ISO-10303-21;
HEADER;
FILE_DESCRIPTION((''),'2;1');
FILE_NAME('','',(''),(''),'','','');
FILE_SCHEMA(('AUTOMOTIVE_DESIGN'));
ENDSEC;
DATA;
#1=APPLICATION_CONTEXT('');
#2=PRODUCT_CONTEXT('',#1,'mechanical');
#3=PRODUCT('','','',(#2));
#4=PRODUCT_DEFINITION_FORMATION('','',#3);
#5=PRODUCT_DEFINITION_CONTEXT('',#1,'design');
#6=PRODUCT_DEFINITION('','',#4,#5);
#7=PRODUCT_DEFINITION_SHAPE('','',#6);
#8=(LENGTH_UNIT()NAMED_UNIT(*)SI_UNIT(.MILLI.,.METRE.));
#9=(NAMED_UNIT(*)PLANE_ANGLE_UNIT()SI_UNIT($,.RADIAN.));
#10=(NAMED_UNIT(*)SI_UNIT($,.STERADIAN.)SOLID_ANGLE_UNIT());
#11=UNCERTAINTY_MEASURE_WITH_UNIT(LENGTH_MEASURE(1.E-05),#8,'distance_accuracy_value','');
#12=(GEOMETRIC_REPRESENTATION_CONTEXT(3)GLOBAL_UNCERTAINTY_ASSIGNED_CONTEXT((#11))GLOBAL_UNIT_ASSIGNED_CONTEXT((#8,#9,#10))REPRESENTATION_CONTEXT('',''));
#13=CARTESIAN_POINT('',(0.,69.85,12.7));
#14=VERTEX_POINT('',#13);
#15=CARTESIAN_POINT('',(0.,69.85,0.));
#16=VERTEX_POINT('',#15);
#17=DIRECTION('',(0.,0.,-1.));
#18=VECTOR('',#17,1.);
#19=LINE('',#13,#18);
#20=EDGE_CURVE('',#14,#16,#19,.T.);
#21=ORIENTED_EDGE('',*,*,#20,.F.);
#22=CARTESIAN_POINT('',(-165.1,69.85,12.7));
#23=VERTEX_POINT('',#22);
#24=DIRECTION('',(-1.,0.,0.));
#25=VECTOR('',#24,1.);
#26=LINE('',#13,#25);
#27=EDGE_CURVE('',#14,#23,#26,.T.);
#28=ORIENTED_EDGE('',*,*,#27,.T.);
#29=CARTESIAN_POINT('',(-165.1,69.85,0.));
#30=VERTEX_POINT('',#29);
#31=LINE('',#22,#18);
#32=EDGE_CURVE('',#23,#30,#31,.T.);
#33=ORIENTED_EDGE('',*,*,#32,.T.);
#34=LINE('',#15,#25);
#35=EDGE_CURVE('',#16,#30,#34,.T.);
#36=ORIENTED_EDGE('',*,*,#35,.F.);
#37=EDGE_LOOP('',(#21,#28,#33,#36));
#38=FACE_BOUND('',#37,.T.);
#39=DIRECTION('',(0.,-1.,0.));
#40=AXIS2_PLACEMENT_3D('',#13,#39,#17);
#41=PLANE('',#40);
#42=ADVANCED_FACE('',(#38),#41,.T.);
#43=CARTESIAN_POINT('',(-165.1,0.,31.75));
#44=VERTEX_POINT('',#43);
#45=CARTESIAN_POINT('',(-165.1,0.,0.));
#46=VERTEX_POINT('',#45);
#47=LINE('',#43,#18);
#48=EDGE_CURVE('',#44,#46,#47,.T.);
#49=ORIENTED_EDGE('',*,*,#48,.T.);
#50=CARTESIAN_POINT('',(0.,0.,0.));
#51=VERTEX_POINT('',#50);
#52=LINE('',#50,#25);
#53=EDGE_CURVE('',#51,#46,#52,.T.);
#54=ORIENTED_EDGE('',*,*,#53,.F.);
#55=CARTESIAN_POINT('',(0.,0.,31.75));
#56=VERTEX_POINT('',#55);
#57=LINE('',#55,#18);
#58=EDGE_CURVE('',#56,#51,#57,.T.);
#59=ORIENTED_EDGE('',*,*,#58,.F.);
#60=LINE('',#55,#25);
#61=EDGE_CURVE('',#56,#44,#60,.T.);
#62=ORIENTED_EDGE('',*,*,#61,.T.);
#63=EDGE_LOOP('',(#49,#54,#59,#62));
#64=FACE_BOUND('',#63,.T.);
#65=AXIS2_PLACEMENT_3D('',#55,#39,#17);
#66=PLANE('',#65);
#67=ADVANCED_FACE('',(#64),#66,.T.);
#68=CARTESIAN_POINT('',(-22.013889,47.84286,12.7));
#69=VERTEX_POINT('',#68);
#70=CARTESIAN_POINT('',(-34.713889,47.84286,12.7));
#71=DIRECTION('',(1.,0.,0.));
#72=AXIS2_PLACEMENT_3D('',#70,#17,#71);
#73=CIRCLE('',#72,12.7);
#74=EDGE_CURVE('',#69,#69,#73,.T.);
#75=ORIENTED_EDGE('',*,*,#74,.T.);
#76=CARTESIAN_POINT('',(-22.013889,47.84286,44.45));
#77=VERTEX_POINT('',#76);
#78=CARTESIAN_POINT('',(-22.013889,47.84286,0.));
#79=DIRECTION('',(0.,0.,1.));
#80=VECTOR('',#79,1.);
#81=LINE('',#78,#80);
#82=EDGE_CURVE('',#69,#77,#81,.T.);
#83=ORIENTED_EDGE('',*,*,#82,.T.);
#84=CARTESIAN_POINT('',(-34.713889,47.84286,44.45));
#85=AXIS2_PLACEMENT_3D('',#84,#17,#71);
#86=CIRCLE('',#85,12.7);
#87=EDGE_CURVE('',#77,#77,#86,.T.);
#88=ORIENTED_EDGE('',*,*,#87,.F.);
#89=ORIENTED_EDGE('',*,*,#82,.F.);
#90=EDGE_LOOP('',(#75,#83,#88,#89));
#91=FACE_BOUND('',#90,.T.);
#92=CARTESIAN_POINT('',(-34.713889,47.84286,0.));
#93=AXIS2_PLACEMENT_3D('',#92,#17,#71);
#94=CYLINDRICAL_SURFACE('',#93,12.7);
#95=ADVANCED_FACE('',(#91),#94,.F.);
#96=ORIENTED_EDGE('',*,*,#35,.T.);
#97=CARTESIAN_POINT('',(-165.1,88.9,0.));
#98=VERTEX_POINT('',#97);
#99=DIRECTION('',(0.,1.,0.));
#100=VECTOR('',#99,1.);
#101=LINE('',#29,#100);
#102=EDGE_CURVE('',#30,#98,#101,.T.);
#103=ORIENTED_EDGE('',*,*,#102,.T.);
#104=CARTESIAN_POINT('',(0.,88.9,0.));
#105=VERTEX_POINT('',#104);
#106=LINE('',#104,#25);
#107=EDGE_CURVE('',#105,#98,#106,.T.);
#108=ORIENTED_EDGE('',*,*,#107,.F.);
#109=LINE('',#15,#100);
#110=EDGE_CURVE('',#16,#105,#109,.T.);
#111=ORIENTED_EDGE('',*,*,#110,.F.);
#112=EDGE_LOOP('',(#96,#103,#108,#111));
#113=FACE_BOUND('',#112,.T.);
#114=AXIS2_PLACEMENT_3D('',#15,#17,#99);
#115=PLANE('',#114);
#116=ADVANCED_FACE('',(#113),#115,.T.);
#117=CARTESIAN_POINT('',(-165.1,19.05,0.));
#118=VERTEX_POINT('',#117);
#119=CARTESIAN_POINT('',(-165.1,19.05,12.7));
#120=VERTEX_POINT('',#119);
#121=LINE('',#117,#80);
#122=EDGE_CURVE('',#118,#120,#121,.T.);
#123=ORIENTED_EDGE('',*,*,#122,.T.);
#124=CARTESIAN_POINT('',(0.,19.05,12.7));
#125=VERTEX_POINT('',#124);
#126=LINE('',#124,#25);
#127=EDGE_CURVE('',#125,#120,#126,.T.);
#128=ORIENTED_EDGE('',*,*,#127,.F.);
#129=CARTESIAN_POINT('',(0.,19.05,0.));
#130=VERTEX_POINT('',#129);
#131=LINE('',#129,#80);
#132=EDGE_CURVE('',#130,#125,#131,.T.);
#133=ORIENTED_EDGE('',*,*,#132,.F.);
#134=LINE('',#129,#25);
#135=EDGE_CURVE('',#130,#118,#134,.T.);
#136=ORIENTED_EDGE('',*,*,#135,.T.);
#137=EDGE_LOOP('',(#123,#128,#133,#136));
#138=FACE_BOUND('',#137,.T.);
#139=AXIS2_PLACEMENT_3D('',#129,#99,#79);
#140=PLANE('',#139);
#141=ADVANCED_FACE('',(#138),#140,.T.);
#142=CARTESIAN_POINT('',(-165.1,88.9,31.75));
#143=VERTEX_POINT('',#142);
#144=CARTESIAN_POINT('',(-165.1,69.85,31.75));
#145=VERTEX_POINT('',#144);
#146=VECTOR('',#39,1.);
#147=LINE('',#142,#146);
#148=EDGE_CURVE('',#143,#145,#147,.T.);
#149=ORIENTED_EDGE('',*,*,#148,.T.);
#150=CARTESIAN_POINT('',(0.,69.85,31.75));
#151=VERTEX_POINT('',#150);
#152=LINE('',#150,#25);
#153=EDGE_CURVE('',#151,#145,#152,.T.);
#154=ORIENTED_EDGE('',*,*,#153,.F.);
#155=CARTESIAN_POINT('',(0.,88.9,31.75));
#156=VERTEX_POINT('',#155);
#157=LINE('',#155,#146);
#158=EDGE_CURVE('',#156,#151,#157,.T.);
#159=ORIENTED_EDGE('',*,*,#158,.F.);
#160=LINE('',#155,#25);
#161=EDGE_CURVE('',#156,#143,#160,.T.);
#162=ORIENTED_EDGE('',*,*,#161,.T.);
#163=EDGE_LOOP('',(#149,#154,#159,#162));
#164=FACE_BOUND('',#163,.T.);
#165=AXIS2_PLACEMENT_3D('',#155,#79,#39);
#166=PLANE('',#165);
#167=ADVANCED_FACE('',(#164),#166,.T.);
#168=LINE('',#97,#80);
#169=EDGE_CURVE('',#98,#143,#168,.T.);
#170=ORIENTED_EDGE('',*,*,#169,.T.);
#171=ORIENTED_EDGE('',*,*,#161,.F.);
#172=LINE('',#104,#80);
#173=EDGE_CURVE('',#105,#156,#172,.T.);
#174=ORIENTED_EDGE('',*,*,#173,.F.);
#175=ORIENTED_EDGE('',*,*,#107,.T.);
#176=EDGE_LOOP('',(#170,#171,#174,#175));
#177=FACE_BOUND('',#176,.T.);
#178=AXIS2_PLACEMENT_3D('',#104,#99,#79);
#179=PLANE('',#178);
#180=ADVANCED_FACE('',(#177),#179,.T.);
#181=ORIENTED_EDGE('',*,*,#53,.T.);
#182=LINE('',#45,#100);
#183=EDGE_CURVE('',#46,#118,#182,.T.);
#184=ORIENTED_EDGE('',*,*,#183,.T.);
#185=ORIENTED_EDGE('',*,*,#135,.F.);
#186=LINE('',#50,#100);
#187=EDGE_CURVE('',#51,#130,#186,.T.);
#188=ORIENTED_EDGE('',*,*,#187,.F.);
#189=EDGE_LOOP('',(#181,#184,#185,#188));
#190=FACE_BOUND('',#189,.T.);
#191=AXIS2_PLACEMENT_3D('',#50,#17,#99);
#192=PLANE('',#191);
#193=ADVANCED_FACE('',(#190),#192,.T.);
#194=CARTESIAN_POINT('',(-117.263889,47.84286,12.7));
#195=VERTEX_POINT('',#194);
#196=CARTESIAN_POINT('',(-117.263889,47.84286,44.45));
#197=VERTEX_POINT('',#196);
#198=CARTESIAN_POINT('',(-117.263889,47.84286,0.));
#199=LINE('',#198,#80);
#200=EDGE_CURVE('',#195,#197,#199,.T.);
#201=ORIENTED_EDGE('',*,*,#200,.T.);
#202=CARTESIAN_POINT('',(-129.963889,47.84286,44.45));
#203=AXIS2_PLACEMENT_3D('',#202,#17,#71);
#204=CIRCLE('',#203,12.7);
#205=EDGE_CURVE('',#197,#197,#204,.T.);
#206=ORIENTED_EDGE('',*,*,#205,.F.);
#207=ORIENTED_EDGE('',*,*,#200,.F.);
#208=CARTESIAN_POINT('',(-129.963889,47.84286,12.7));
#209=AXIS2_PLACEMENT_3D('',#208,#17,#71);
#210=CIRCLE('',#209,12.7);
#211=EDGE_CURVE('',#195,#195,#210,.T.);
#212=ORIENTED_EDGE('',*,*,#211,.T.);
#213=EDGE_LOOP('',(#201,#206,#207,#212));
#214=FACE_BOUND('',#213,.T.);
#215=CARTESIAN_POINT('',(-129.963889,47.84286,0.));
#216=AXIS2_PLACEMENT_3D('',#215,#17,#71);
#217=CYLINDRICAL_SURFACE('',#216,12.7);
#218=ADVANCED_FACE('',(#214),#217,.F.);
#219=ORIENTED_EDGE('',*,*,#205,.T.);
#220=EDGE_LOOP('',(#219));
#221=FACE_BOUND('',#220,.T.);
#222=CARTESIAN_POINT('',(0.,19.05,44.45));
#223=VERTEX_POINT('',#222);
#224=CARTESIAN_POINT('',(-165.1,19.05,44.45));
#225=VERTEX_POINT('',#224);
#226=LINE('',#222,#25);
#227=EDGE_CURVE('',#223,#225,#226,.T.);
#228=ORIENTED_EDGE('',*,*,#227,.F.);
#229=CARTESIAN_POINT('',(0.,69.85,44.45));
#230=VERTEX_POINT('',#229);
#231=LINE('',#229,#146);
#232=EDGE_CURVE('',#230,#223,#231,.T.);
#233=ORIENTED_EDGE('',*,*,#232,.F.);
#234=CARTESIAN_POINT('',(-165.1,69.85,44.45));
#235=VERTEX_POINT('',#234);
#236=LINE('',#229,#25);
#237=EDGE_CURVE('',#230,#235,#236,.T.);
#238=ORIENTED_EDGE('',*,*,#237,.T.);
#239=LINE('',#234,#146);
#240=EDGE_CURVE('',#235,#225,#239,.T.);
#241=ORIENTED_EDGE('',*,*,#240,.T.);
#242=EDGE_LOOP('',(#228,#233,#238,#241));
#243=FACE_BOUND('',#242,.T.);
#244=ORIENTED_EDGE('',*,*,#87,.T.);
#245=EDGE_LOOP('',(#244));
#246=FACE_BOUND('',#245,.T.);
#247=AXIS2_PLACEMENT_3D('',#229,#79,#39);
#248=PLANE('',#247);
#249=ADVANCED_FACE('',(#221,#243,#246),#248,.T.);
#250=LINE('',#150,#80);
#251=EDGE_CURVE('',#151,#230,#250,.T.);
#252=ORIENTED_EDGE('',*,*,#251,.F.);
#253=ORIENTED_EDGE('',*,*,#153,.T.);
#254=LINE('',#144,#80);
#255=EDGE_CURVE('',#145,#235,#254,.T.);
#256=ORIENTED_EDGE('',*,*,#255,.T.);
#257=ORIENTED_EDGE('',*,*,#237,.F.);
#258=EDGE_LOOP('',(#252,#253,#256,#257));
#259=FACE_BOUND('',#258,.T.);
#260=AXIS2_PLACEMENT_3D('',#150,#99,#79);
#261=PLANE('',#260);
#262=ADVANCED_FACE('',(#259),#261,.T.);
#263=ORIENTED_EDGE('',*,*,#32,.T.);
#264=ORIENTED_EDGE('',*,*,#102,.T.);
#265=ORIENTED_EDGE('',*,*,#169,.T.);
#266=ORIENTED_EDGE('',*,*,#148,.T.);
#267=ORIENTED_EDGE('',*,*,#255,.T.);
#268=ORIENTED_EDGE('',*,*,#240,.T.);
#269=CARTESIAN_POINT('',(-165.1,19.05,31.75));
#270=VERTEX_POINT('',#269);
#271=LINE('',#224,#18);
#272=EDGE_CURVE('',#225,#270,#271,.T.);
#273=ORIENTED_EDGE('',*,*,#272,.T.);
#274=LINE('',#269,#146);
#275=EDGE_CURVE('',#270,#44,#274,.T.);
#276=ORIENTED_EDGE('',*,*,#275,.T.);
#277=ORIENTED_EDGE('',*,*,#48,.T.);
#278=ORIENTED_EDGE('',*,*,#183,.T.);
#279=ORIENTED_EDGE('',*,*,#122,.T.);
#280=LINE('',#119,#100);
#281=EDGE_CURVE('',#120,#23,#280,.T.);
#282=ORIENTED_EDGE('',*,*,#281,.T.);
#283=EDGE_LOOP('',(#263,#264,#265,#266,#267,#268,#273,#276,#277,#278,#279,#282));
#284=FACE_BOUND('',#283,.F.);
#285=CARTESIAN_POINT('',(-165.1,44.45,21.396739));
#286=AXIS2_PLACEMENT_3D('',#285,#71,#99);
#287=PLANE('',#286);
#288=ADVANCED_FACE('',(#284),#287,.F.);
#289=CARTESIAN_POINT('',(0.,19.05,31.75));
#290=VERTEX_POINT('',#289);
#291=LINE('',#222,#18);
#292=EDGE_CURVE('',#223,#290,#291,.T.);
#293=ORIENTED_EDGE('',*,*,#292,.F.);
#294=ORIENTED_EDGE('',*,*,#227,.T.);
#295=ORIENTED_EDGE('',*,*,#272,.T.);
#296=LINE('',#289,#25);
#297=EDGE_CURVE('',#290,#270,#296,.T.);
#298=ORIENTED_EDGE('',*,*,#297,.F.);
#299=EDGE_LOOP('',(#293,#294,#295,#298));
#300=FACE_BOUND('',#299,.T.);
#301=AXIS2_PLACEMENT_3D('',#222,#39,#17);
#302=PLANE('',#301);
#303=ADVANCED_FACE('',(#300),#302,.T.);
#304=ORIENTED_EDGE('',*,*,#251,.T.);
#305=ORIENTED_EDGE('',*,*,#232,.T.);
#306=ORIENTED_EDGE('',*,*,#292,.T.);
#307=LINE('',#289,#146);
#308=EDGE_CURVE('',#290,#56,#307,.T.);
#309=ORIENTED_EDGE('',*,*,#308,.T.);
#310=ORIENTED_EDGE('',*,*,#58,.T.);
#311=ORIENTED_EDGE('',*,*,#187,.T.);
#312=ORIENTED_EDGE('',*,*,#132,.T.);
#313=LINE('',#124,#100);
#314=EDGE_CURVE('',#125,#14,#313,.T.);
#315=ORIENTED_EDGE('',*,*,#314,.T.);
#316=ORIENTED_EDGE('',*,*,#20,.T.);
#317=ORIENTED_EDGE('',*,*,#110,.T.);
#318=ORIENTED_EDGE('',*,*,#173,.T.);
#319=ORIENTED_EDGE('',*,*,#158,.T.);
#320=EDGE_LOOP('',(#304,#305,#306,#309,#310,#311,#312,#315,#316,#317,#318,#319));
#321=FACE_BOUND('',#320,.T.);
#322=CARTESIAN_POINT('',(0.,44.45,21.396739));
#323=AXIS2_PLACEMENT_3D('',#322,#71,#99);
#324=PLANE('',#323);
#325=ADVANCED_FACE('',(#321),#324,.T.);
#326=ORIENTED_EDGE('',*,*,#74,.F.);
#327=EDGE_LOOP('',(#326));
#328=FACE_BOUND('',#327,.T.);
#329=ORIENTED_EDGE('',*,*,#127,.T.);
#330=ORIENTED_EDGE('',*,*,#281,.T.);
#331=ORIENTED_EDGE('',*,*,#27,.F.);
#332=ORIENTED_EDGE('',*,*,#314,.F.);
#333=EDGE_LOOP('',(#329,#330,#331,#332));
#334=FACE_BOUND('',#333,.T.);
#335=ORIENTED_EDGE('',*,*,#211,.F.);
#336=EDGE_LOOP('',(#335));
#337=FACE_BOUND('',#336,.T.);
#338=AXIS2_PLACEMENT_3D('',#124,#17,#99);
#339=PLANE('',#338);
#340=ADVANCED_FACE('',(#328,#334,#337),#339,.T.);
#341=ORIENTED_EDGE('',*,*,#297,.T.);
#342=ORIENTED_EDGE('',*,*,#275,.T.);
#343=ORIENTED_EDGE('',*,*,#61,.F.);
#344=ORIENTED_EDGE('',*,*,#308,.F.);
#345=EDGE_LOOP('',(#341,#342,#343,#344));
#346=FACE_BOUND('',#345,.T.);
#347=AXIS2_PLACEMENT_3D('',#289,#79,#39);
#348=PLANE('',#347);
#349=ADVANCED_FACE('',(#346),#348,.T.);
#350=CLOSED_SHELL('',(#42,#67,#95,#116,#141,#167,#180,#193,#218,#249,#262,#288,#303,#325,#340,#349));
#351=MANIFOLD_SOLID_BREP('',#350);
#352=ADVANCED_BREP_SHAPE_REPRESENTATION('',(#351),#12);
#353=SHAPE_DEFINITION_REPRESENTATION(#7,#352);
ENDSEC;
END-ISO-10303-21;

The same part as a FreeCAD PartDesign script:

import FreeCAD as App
import Part
import Sketcher

V = App.Vector
Q = App.Units.Quantity

doc = App.newDocument("Part")
params = doc.addObject("Spreadsheet::Sheet", "Params")
for row, (alias, value) in enumerate([
    ("sketch1_width", "2 in"),
    ("sketch1_height", "0.5 in"),
    ("sketch1_width2", "0.75 in"),
    ("sketch1_height2", "1.25 in"),
    ("pad1_length", "6.5 in"),
    ("sketch2_diameter", "1 in"),
], start=1):
    params.set(f"A{row}", alias)
    params.set(f"B{row}", "=" + value)
    params.setAlias(f"B{row}", alias)

body = doc.addObject("PartDesign::Body", "Body")

sketch1 = body.newObject("Sketcher::SketchObject", "Sketch")
sketch1.AttachmentSupport = (doc.getObject("YZ_Plane"), [""])
sketch1.MapMode = "FlatFace"
sketch1.addGeometry(Part.LineSegment(V(0, 32, 0), V(0, 0, 0)), False)
sketch1.addGeometry(Part.LineSegment(V(0, 0, 0), V(19, 0, 0)), False)
sketch1.addGeometry(Part.LineSegment(V(19, 0, 0), V(19, 13, 0)), False)
sketch1.addGeometry(Part.LineSegment(V(19, 13, 0), V(70, 13, 0)), False)
sketch1.addGeometry(Part.LineSegment(V(70, 13, 0), V(70, 0, 0)), False)
sketch1.addGeometry(Part.LineSegment(V(70, 0, 0), V(89, 0, 0)), False)
sketch1.addGeometry(Part.LineSegment(V(89, 0, 0), V(89, 32, 0)), False)
sketch1.addGeometry(Part.LineSegment(V(89, 32, 0), V(70, 32, 0)), False)
sketch1.addGeometry(Part.LineSegment(V(70, 32, 0), V(70, 44, 0)), False)
sketch1.addGeometry(Part.LineSegment(V(70, 44, 0), V(19, 44, 0)), False)
sketch1.addGeometry(Part.LineSegment(V(19, 44, 0), V(19, 32, 0)), False)
sketch1.addGeometry(Part.LineSegment(V(19, 32, 0), V(0, 32, 0)), False)
sketch1.addConstraint(Sketcher.Constraint("Coincident", 0, 2, 1, 1))
sketch1.addConstraint(Sketcher.Constraint("Coincident", 1, 2, 2, 1))
sketch1.addConstraint(Sketcher.Constraint("Coincident", 2, 2, 3, 1))
sketch1.addConstraint(Sketcher.Constraint("Coincident", 3, 2, 4, 1))
sketch1.addConstraint(Sketcher.Constraint("Coincident", 4, 2, 5, 1))
sketch1.addConstraint(Sketcher.Constraint("Coincident", 5, 2, 6, 1))
sketch1.addConstraint(Sketcher.Constraint("Coincident", 6, 2, 7, 1))
sketch1.addConstraint(Sketcher.Constraint("Coincident", 7, 2, 8, 1))
sketch1.addConstraint(Sketcher.Constraint("Coincident", 8, 2, 9, 1))
sketch1.addConstraint(Sketcher.Constraint("Coincident", 9, 2, 10, 1))
sketch1.addConstraint(Sketcher.Constraint("Coincident", 10, 2, 11, 1))
sketch1.addConstraint(Sketcher.Constraint("Coincident", 11, 2, 0, 1))
sketch1.addConstraint(Sketcher.Constraint("Vertical", 0))
sketch1.addConstraint(Sketcher.Constraint("Horizontal", 1))
sketch1.addConstraint(Sketcher.Constraint("Vertical", 2))
sketch1.addConstraint(Sketcher.Constraint("Horizontal", 3))
sketch1.addConstraint(Sketcher.Constraint("Vertical", 4))
sketch1.addConstraint(Sketcher.Constraint("Horizontal", 5))
sketch1.addConstraint(Sketcher.Constraint("Vertical", 6))
sketch1.addConstraint(Sketcher.Constraint("Horizontal", 7))
sketch1.addConstraint(Sketcher.Constraint("Vertical", 8))
sketch1.addConstraint(Sketcher.Constraint("Horizontal", 9))
sketch1.addConstraint(Sketcher.Constraint("Vertical", 10))
sketch1.addConstraint(Sketcher.Constraint("Horizontal", 11))
sketch1.addConstraint(Sketcher.Constraint("Coincident", 0, 2, -1, 1))
sketch1.addConstraint(Sketcher.Constraint("PointOnObject", 4, 2, -1))
sketch1.addConstraint(Sketcher.Constraint("Horizontal", 7, 2, 10, 2))
sketch1.addConstraint(Sketcher.Constraint("Vertical", 4, 2, 7, 2))
sketch1.addConstraint(Sketcher.Constraint("Vertical", 2, 2, 9, 2))
sketch1.addConstraint(Sketcher.Constraint("Equal", 1, 5))
sketch1.addConstraint(Sketcher.Constraint("Equal", 4, 8))
sketch1.addConstraint(Sketcher.Constraint("DistanceX", 3, 1, 3, 2, Q("2 in")))
sketch1.addConstraint(Sketcher.Constraint("DistanceY", 2, 1, 2, 2, Q("0.5 in")))
sketch1.addConstraint(Sketcher.Constraint("DistanceX", 1, 1, 1, 2, Q("0.75 in")))
sketch1.addConstraint(Sketcher.Constraint("DistanceY", 0, 2, 0, 1, Q("1.25 in")))
sketch1.setExpression("Constraints[31]", "Params.sketch1_width")
sketch1.setExpression("Constraints[32]", "Params.sketch1_height")
sketch1.setExpression("Constraints[33]", "Params.sketch1_width2")
sketch1.setExpression("Constraints[34]", "Params.sketch1_height2")
pad1 = body.newObject("PartDesign::Pad", "Pad")
pad1.Profile = sketch1
pad1.setExpression("Length", "Params.pad1_length")
pad1.Reversed = True

sketch2 = body.newObject("Sketcher::SketchObject", "Sketch001")
sketch2.AttachmentSupport = (doc.getObject("XY_Plane"), [""])
sketch2.MapMode = "FlatFace"
sketch2.addGeometry(Part.Circle(V(-130, 48, 0), V(0, 0, 1), 13), False)
sketch2.addGeometry(Part.Circle(V(-35, 48, 0), V(0, 0, 1), 13), False)
sketch2.addConstraint(Sketcher.Constraint("Equal", 0, 1))
sketch2.addConstraint(Sketcher.Constraint("Horizontal", 0, 3, 1, 3))
sketch2.addConstraint(Sketcher.Constraint("Diameter", 0, Q("1 in")))
sketch2.addConstraint(Sketcher.Constraint("DistanceX", 0, 3, 1, 3, Q("3.75 in")))
sketch2.addConstraint(Sketcher.Constraint("DistanceX", 0, 3, -1, 1, Q("129.963889 mm")))
sketch2.addConstraint(Sketcher.Constraint("DistanceY", -1, 1, 0, 3, Q("47.84286 mm")))
sketch2.setExpression("Constraints[2]", "Params.sketch2_diameter")
pocket1 = body.newObject("PartDesign::Pocket", "Pocket")
pocket1.Profile = sketch2
pocket1.Type = "ThroughAll"
pocket1.Reversed = True

doc.recompute()
